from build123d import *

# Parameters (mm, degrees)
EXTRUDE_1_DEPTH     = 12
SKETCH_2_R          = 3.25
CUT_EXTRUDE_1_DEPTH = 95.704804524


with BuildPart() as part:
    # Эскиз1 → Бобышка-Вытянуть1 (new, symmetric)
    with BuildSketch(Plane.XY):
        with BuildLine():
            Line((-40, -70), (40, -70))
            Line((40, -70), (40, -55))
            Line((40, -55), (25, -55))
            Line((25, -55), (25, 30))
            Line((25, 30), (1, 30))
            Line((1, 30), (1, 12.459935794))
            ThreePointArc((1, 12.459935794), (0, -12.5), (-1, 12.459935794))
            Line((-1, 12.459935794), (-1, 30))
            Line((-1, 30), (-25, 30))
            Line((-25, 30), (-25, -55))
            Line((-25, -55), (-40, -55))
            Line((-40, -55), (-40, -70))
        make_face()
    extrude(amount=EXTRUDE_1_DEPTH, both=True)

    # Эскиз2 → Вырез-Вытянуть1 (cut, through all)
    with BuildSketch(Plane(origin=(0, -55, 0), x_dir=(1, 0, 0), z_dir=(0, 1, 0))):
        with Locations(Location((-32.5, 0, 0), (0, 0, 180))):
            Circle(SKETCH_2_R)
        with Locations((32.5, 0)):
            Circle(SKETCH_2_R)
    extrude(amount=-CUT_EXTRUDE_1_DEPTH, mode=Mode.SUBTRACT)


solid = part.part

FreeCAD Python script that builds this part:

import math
import FreeCAD as App
import Part
import Sketcher
from FreeCAD import Vector
Q = App.Units.Quantity

doc = App.newDocument("Part")
body = doc.addObject("PartDesign::Body", "Body")

sketch1 = doc.addObject("Sketcher::SketchObject", "Sketch")
body.addObject(sketch1)
sketch1.AttachmentSupport = (doc.XY_Plane, [""])
sketch1.MapMode = "FlatFace"
sketch1.addGeometry([
    Part.LineSegment(Vector(-40, -70, 0), Vector(40, -70, 0)),
    Part.LineSegment(Vector(40, -70, 0), Vector(40, -55, 0)),
    Part.LineSegment(Vector(40, -55, 0), Vector(25, -55, 0)),
    Part.LineSegment(Vector(25, -55, 0), Vector(25, 30, 0)),
    Part.LineSegment(Vector(25, 30, 0), Vector(1, 30, 0)),
    Part.LineSegment(Vector(1, 30, 0), Vector(1, 12.5, 0)),
    Part.ArcOfCircle(Part.Circle(Vector(0, 0, 0), Vector(0, 0, 1), 12.5), math.radians(95), math.radians(445)),
    Part.LineSegment(Vector(-1, 12.5, 0), Vector(-1, 30, 0)),
    Part.LineSegment(Vector(-1, 30, 0), Vector(-25, 30, 0)),
    Part.LineSegment(Vector(-25, 30, 0), Vector(-25, -55, 0)),
    Part.LineSegment(Vector(-25, -55, 0), Vector(-40, -55, 0)),
    Part.LineSegment(Vector(-40, -55, 0), Vector(-40, -70, 0)),
], False)
sketch1.addConstraint([
    Sketcher.Constraint("Coincident", 0, 2, 1, 1),
    Sketcher.Constraint("Coincident", 1, 2, 2, 1),
    Sketcher.Constraint("Coincident", 2, 2, 3, 1),
    Sketcher.Constraint("Coincident", 3, 2, 4, 1),
    Sketcher.Constraint("Coincident", 4, 2, 5, 1),
    Sketcher.Constraint("Coincident", 5, 2, 6, 2),
    Sketcher.Constraint("Coincident", 6, 1, 7, 1),
    Sketcher.Constraint("Coincident", 7, 2, 8, 1),
    Sketcher.Constraint("Coincident", 8, 2, 9, 1),
    Sketcher.Constraint("Coincident", 9, 2, 10, 1),
    Sketcher.Constraint("Coincident", 10, 2, 11, 1),
    Sketcher.Constraint("Coincident", 11, 2, 0, 1),
    Sketcher.Constraint("Horizontal", 0),
    Sketcher.Constraint("Vertical", 1),
    Sketcher.Constraint("Horizontal", 2),
    Sketcher.Constraint("Vertical", 3),
    Sketcher.Constraint("Horizontal", 4),
    Sketcher.Constraint("Vertical", 5),
    Sketcher.Constraint("Vertical", 7),
    Sketcher.Constraint("Horizontal", 8),
    Sketcher.Constraint("Vertical", 9),
    Sketcher.Constraint("Horizontal", 10),
    Sketcher.Constraint("Vertical", 11),
    Sketcher.Constraint("Coincident", 6, 3, -1, 1),
    Sketcher.Constraint("Symmetric", 4, 2, 7, 2, -2),
    Sketcher.Constraint("Symmetric", 2, 2, 9, 2, -2),
    Sketcher.Constraint("Equal", 2, 10),
    Sketcher.Constraint("Equal", 10, 1),
    Sketcher.Constraint("Radius", 6, Q("12.5 mm")),
    Sketcher.Constraint("DistanceX", 0, 1, 0, 2, Q("80 mm")),
    Sketcher.Constraint("DistanceX", 2, 2, 2, 1, Q("15 mm")),
    Sketcher.Constraint("DistanceX", 4, 2, 4, 1, Q("24 mm")),
    Sketcher.Constraint("DistanceY", 3, 1, 3, 2, Q("85 mm")),
    Sketcher.Constraint("DistanceY", 0, 2, -1, 1, Q("70 mm")),
])
pad1 = doc.addObject("PartDesign::Pad", "Pad")
body.addObject(pad1)
pad1.Profile = sketch1
pad1.Length = 24
pad1.Midplane = True

sketch2 = doc.addObject("Sketcher::SketchObject", "Sketch001")
body.addObject(sketch2)
sketch2.AttachmentSupport = (doc.XZ_Plane, [""])
sketch2.MapMode = "FlatFace"
sketch2.AttachmentOffset = App.Placement(Vector(0, 0, 55), App.Rotation())
sketch2.addGeometry([
    Part.Circle(Vector(-32.5, 0, 0), Vector(0, 0, 1), 3.2),
    Part.Circle(Vector(32.5, 0, 0), Vector(0, 0, 1), 3.2),
], False)
sketch2.addConstraint([
    Sketcher.Constraint("Equal", 0, 1),
    Sketcher.Constraint("Symmetric", 0, 3, 1, 3, -1, 1),
    Sketcher.Constraint("PointOnObject", 0, 3, -1),
    Sketcher.Constraint("Diameter", 0, Q("6.5 mm")),
    Sketcher.Constraint("DistanceX", 0, 3, 1, 3, Q("65 mm")),
])
pocket1 = doc.addObject("PartDesign::Pocket", "Pocket")
body.addObject(pocket1)
pocket1.Profile = sketch2
pocket1.Type = "ThroughAll"
pocket1.Reversed = True

doc.recompute()
